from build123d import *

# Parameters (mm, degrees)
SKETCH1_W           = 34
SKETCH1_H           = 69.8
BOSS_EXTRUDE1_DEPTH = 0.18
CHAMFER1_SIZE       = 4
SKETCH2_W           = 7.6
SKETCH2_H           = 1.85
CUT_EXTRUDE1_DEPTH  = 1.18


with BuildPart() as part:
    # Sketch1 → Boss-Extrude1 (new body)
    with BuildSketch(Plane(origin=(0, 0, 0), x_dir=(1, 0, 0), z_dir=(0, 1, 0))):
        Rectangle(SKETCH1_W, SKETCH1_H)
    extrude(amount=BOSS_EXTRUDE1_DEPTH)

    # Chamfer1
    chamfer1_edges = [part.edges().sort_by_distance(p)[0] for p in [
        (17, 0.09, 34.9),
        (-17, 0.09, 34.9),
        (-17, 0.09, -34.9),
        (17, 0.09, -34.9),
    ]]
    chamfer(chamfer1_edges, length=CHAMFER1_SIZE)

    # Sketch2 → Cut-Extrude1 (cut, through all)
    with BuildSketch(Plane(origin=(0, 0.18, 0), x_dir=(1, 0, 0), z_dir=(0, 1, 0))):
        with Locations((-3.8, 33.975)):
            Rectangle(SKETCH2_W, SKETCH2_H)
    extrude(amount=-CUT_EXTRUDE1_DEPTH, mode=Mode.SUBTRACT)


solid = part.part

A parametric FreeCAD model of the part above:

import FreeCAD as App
import Part
import Sketcher

V = App.Vector
Q = App.Units.Quantity


def edges_at(feature, points):
    """Names of the edges that pass closest to the given points."""
    edges = feature.Shape.Edges
    near = lambda p: min(range(len(edges)), key=lambda i: edges[i].distToShape(Part.Vertex(*p))[0])
    return sorted({f"Edge{near(p) + 1}" for p in points})


def add_polygon(sketch, points):
    """Adds a closed chain of lines whose ends are joined by coincident constraints."""
    first, n = sketch.GeometryCount, len(points)
    for a, b in zip(points, points[1:] + points[:1]):
        sketch.addGeometry(Part.LineSegment(App.Vector(*a, 0), App.Vector(*b, 0)), False)
    for i in range(n):
        sketch.addConstraint(Sketcher.Constraint("Coincident", first + i, 2, first + (i + 1) % n, 1))

doc = App.newDocument("Part")
params = doc.addObject("Spreadsheet::Sheet", "Params")
for row, (alias, value) in enumerate([
    ("sketch1_width", "34 mm"),
    ("sketch1_height", "69.8 mm"),
    ("pad1_length", "0.18 mm"),
    ("chamfer_size", "4 mm"),
    ("sketch2_width", "7.6 mm"),
    ("sketch2_height", "1.85 mm"),
], start=1):
    params.set(f"A{row}", alias)
    params.set(f"B{row}", "=" + value)
    params.setAlias(f"B{row}", alias)

body = doc.addObject("PartDesign::Body", "Body")

sketch1 = body.newObject("Sketcher::SketchObject", "Sketch")
sketch1.AttachmentSupport = (doc.getObject("XZ_Plane"), [""])
sketch1.MapMode = "FlatFace"
add_polygon(sketch1, [(-17, -35), (-17, 35), (17, 35), (17, -35)])
sketch1.addConstraint(Sketcher.Constraint("Vertical", 0))
sketch1.addConstraint(Sketcher.Constraint("Horizontal", 1))
sketch1.addConstraint(Sketcher.Constraint("Vertical", 2))
sketch1.addConstraint(Sketcher.Constraint("Horizontal", 3))
sketch1.addConstraint(Sketcher.Constraint("Symmetric", 0, 2, 2, 2, -1, 1))
sketch1.addConstraint(Sketcher.Constraint("DistanceX", 1, 1, 1, 2, Q("34 mm")))
sketch1.addConstraint(Sketcher.Constraint("DistanceY", 0, 1, 0, 2, Q("69.8 mm")))
sketch1.setExpression("Constraints[9]", "Params.sketch1_width")
sketch1.setExpression("Constraints[10]", "Params.sketch1_height")
pad1 = body.newObject("PartDesign::Pad", "Pad")
pad1.Profile = sketch1
pad1.setExpression("Length", "Params.pad1_length")
pad1.Reversed = True
doc.recompute()

chamfer = body.newObject("PartDesign::Chamfer", "Chamfer")
chamfer.Base = (pad1, edges_at(pad1, [
    (17, 0.09, 34.9),
    (-17, 0.09, 34.9),
    (-17, 0.09, -34.9),
    (17, 0.09, -34.9),
]))
chamfer.setExpression("Size", "Params.chamfer_size")

sketch2 = body.newObject("Sketcher::SketchObject", "Sketch001")
sketch2.AttachmentSupport = (doc.getObject("XZ_Plane"), [""])
sketch2.MapMode = "FlatFace"
sketch2.AttachmentOffset = App.Placement(V(0, 0, -0.18), App.Rotation())
add_polygon(sketch2, [(-7.6, -34.9), (-7.6, -33), (0, -33), (0, -34.9)])
sketch2.addConstraint(Sketcher.Constraint("Vertical", 0))
sketch2.addConstraint(Sketcher.Constraint("Horizontal", 1))
sketch2.addConstraint(Sketcher.Constraint("Vertical", 2))
sketch2.addConstraint(Sketcher.Constraint("Horizontal", 3))
sketch2.addConstraint(Sketcher.Constraint("PointOnObject", 1, 2, -2))
sketch2.addConstraint(Sketcher.Constraint("DistanceX", 1, 1, 1, 2, Q("7.6 mm")))
sketch2.addConstraint(Sketcher.Constraint("DistanceY", 0, 1, 0, 2, Q("1.85 mm")))
sketch2.addConstraint(Sketcher.Constraint("DistanceY", 2, 2, -1, 1, Q("34.9 mm")))
sketch2.setExpression("Constraints[9]", "Params.sketch2_width")
sketch2.setExpression("Constraints[10]", "Params.sketch2_height")
pocket1 = body.newObject("PartDesign::Pocket", "Pocket")
pocket1.Profile = sketch2
pocket1.Type = "ThroughAll"
pocket1.Reversed = True

doc.recompute()
